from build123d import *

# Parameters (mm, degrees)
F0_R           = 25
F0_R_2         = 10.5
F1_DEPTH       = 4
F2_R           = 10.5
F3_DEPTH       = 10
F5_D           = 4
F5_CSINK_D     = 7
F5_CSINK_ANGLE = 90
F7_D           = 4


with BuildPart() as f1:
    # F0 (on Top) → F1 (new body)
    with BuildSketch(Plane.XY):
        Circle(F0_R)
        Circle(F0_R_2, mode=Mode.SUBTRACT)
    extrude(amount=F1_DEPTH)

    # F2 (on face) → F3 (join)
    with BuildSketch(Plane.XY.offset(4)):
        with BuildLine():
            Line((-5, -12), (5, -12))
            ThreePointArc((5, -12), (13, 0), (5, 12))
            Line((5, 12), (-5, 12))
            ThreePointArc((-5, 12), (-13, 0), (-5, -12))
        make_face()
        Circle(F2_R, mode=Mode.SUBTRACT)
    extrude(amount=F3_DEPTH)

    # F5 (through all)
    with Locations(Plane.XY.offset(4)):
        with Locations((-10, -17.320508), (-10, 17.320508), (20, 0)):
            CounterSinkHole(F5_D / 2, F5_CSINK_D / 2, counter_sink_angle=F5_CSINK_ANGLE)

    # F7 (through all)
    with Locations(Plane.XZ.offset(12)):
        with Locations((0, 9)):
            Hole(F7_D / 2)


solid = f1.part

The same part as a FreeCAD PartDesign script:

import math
import FreeCAD as App
import Part
import Sketcher

doc = App.newDocument("Part")
body = doc.addObject("PartDesign::Body", "Body")

# Sketch on XY plane
sketch1 = body.newObject("Sketcher::SketchObject", "Sketch")
sketch1.AttachmentSupport = (doc.getObject("XY_Plane"), [""])
sketch1.MapMode = "FlatFace"
sketch1.addGeometry([
    Part.Circle(App.Vector(0, 0, 0), App.Vector(0, 0, 1), 25),
    Part.Circle(App.Vector(0, 0, 0), App.Vector(0, 0, 1), 10),
], False)
sketch1.addConstraint([
    Sketcher.Constraint("Coincident", 0, 3, -1, 1),
    Sketcher.Constraint("Coincident", 1, 3, -1, 1),
    Sketcher.Constraint("Diameter", 0, 50.0),
    Sketcher.Constraint("Diameter", 1, 21.0),
])
pad1 = body.newObject("PartDesign::Pad", "Pad")
pad1.Profile = sketch1
pad1.Length = 4

# Sketch on XY plane
sketch2 = body.newObject("Sketcher::SketchObject", "Sketch001")
sketch2.AttachmentSupport = (doc.getObject("XY_Plane"), [""])
sketch2.MapMode = "FlatFace"
sketch2.AttachmentOffset = App.Placement(App.Vector(0, 0, 4), App.Rotation())
sketch2.addGeometry([
    Part.LineSegment(App.Vector(-5, -12, 0), App.Vector(5, -12, 0)),  # 0
    Part.ArcOfCircle(Part.Circle(App.Vector(0, 0, 0), App.Vector(0, 0, 1), 13), math.radians(-67), math.radians(67)),  # 1
    Part.LineSegment(App.Vector(5, 12, 0), App.Vector(-5, 12, 0)),  # 2
    Part.ArcOfCircle(Part.Circle(App.Vector(0, 0, 0), App.Vector(0, 0, 1), 13), math.radians(113), math.radians(247)),  # 3
    Part.Circle(App.Vector(0, 0, 0), App.Vector(0, 0, 1), 10),  # 4
], False)
sketch2.addConstraint([
    Sketcher.Constraint("Coincident", 0, 2, 1, 1),
    Sketcher.Constraint("Coincident", 1, 2, 2, 1),
    Sketcher.Constraint("Coincident", 2, 2, 3, 1),
    Sketcher.Constraint("Coincident", 3, 2, 0, 1),
    Sketcher.Constraint("Horizontal", 0),
    Sketcher.Constraint("Horizontal", 2),
    Sketcher.Constraint("Coincident", 1, 3, -1, 1),
    Sketcher.Constraint("Coincident", 3, 3, -1, 1),
    Sketcher.Constraint("Coincident", 4, 3, -1, 1),
    Sketcher.Constraint("Equal", 1, 3),
    Sketcher.Constraint("Vertical", 0, 2, 1, 2),
    Sketcher.Constraint("Diameter", 4, 21.0),
    Sketcher.Constraint("Radius", 1, 13.0),
    Sketcher.Constraint("DistanceX", 0, 1, 0, 2, 10.0),
])
pad2 = body.newObject("PartDesign::Pad", "Pad001")
pad2.Profile = sketch2
pad2.Length = 10

# Sketch on XY plane
sketch3 = body.newObject("Sketcher::SketchObject", "Sketch002")
sketch3.AttachmentSupport = (doc.getObject("XY_Plane"), [""])
sketch3.MapMode = "FlatFace"
sketch3.AttachmentOffset = App.Placement(App.Vector(0, 0, 4), App.Rotation())
sketch3.addGeometry([
    Part.Circle(App.Vector(-10, -17.3, 0), App.Vector(0, 0, 1), 2),
    Part.Circle(App.Vector(-10, 17.3, 0), App.Vector(0, 0, 1), 2),
    Part.Circle(App.Vector(20, 0, 0), App.Vector(0, 0, 1), 2),
], False)
sketch3.addConstraint([
    Sketcher.Constraint("Equal", 0, 1),
    Sketcher.Constraint("Equal", 1, 2),
    Sketcher.Constraint("Symmetric", 0, 3, 1, 3, -1),
    Sketcher.Constraint("PointOnObject", 2, 3, -1),
    Sketcher.Constraint("Diameter", 0, 4.0),
    Sketcher.Constraint("DistanceX", 0, 3, -1, 1, 10.0),
    Sketcher.Constraint("DistanceX", -1, 1, 2, 3, 20.0),
    Sketcher.Constraint("DistanceY", 0, 3, -1, 1, 17.320508),
])
doc.recompute()
hole = body.newObject("PartDesign::Hole", "Hole")
hole.Profile = sketch3
hole.ThreadType = "None"
hole.Diameter = 4
hole.DepthType = "ThroughAll"
hole.HoleCutType = "Countersink"
hole.HoleCutDiameter = 7
hole.HoleCutCountersinkAngle = 90

# Sketch on XZ plane
sketch4 = body.newObject("Sketcher::SketchObject", "Sketch003")
sketch4.AttachmentSupport = (doc.getObject("XZ_Plane"), [""])
sketch4.MapMode = "FlatFace"
sketch4.AttachmentOffset = App.Placement(App.Vector(0, 0, 12), App.Rotation())
sketch4.addGeometry(Part.Circle(App.Vector(0, 9, 0), App.Vector(0, 0, 1), 2), False)
sketch4.addConstraint([
    Sketcher.Constraint("PointOnObject", 0, 3, -2),
    Sketcher.Constraint("Diameter", 0, 4.0),
    Sketcher.Constraint("DistanceY", -1, 1, 0, 3, 9.0),
])
doc.recompute()
hole2 = body.newObject("PartDesign::Hole", "Hole001")
hole2.Profile = sketch4
hole2.ThreadType = "None"
hole2.Diameter = 4
hole2.DepthType = "ThroughAll"

doc.recompute()
